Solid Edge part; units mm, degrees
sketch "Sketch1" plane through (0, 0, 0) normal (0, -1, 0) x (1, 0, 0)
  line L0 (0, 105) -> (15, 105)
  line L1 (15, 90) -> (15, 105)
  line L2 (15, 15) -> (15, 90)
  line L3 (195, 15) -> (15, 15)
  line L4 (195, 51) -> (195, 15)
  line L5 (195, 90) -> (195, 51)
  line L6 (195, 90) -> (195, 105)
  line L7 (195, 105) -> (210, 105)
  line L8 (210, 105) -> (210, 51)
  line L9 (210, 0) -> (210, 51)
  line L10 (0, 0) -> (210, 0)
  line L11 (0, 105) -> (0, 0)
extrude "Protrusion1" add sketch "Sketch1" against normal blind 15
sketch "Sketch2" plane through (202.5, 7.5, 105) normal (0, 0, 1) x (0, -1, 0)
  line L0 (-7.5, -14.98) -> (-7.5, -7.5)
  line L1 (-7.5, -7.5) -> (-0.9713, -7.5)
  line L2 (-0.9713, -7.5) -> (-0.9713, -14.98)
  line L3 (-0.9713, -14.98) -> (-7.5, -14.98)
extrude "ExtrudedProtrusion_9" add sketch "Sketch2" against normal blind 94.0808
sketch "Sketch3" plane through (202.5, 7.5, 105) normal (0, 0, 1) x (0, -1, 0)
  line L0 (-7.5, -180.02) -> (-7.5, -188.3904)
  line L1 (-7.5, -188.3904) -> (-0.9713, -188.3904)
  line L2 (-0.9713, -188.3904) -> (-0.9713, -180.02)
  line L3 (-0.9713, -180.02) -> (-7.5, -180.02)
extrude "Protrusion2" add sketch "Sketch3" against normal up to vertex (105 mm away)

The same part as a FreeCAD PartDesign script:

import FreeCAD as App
import Part
import Sketcher
from FreeCAD import Vector

doc = App.newDocument("Part")
body = doc.addObject("PartDesign::Body", "Body")

# Sketch on XZ plane
sketch1 = doc.addObject("Sketcher::SketchObject", "Sketch")
body.addObject(sketch1)
sketch1.AttachmentSupport = (doc.XZ_Plane, [""])
sketch1.MapMode = "FlatFace"
sketch1.addGeometry(Part.LineSegment(Vector(15, 105, 0), Vector(0, 105, 0)), False)
sketch1.addGeometry(Part.LineSegment(Vector(0, 105, 0), Vector(0, 0, 0)), False)
sketch1.addGeometry(Part.LineSegment(Vector(0, 0, 0), Vector(210, 0, 0)), False)
sketch1.addGeometry(Part.LineSegment(Vector(210, 0, 0), Vector(210, 105, 0)), False)
sketch1.addGeometry(Part.LineSegment(Vector(210, 105, 0), Vector(195, 105, 0)), False)
sketch1.addGeometry(Part.LineSegment(Vector(195, 105, 0), Vector(195, 15, 0)), False)
sketch1.addGeometry(Part.LineSegment(Vector(195, 15, 0), Vector(15, 15, 0)), False)
sketch1.addGeometry(Part.LineSegment(Vector(15, 15, 0), Vector(15, 105, 0)), False)
sketch1.addConstraint(Sketcher.Constraint("Coincident", 0, 2, 1, 1))
sketch1.addConstraint(Sketcher.Constraint("Coincident", 1, 2, 2, 1))
sketch1.addConstraint(Sketcher.Constraint("Coincident", 2, 2, 3, 1))
sketch1.addConstraint(Sketcher.Constraint("Coincident", 3, 2, 4, 1))
sketch1.addConstraint(Sketcher.Constraint("Coincident", 4, 2, 5, 1))
sketch1.addConstraint(Sketcher.Constraint("Coincident", 5, 2, 6, 1))
sketch1.addConstraint(Sketcher.Constraint("Coincident", 6, 2, 7, 1))
sketch1.addConstraint(Sketcher.Constraint("Coincident", 7, 2, 0, 1))
sketch1.addConstraint(Sketcher.Constraint("Horizontal", 0))
sketch1.addConstraint(Sketcher.Constraint("Vertical", 1))
sketch1.addConstraint(Sketcher.Constraint("Horizontal", 2))
sketch1.addConstraint(Sketcher.Constraint("Vertical", 3))
sketch1.addConstraint(Sketcher.Constraint("Horizontal", 4))
sketch1.addConstraint(Sketcher.Constraint("Vertical", 5))
sketch1.addConstraint(Sketcher.Constraint("Horizontal", 6))
sketch1.addConstraint(Sketcher.Constraint("Vertical", 7))
sketch1.addConstraint(Sketcher.Constraint("Coincident", 1, 2, -1, 1))
sketch1.addConstraint(Sketcher.Constraint("Horizontal", 0, 2, 3, 2))
sketch1.addConstraint(Sketcher.Constraint("Equal", 0, 4))
sketch1.addConstraint(Sketcher.Constraint("DistanceX", 0, 2, 0, 1, 15.0))
sketch1.addConstraint(Sketcher.Constraint("DistanceX", 2, 1, 2, 2, 210.0))
sketch1.addConstraint(Sketcher.Constraint("DistanceY", 1, 2, 1, 1, 105.0))
sketch1.addConstraint(Sketcher.Constraint("DistanceY", 5, 2, 5, 1, 90.0))
pad1 = doc.addObject("PartDesign::Pad", "Pad")
body.addObject(pad1)
pad1.Profile = sketch1
pad1.Length = 15
pad1.Reversed = True

# Sketch on XY plane
sketch2 = doc.addObject("Sketcher::SketchObject", "Sketch001")
body.addObject(sketch2)
sketch2.AttachmentSupport = (doc.XY_Plane, [""])
sketch2.MapMode = "FlatFace"
sketch2.AttachmentOffset = App.Placement(Vector(0, 0, 105), App.Rotation())
sketch2.addGeometry(Part.LineSegment(Vector(195, 15, 0), Vector(187.52, 15, 0)), False)
sketch2.addGeometry(Part.LineSegment(Vector(187.52, 15, 0), Vector(187.52, 8.4713, 0)), False)
sketch2.addGeometry(Part.LineSegment(Vector(187.52, 8.4713, 0), Vector(195, 8.4713, 0)), False)
sketch2.addGeometry(Part.LineSegment(Vector(195, 8.4713, 0), Vector(195, 15, 0)), False)
sketch2.addConstraint(Sketcher.Constraint("Coincident", 0, 2, 1, 1))
sketch2.addConstraint(Sketcher.Constraint("Coincident", 1, 2, 2, 1))
sketch2.addConstraint(Sketcher.Constraint("Coincident", 2, 2, 3, 1))
sketch2.addConstraint(Sketcher.Constraint("Coincident", 3, 2, 0, 1))
sketch2.addConstraint(Sketcher.Constraint("Horizontal", 0))
sketch2.addConstraint(Sketcher.Constraint("Vertical", 1))
sketch2.addConstraint(Sketcher.Constraint("Horizontal", 2))
sketch2.addConstraint(Sketcher.Constraint("Vertical", 3))
sketch2.addConstraint(Sketcher.Constraint("DistanceY", -1, 1, 0, 2, 15.0))
sketch2.addConstraint(Sketcher.Constraint("DistanceX", -1, 1, 2, 2, 195.0))
sketch2.addConstraint(Sketcher.Constraint("DistanceX", 0, 2, 0, 1, 7.48))
sketch2.addConstraint(Sketcher.Constraint("DistanceY", 1, 2, 1, 1, 6.5287))
pad2 = doc.addObject("PartDesign::Pad", "Pad001")
body.addObject(pad2)
pad2.Profile = sketch2
pad2.Length = 94.0808
pad2.Reversed = True

# Sketch on XY plane
sketch3 = doc.addObject("Sketcher::SketchObject", "Sketch002")
body.addObject(sketch3)
sketch3.AttachmentSupport = (doc.XY_Plane, [""])
sketch3.MapMode = "FlatFace"
sketch3.AttachmentOffset = App.Placement(Vector(0, 0, 105), App.Rotation())
sketch3.addGeometry(Part.LineSegment(Vector(22.48, 8.4713, 0), Vector(22.48, 15, 0)), False)
sketch3.addGeometry(Part.LineSegment(Vector(22.48, 15, 0), Vector(14.1096, 15, 0)), False)
sketch3.addGeometry(Part.LineSegment(Vector(14.1096, 15, 0), Vector(14.1096, 8.4713, 0)), False)
sketch3.addGeometry(Part.LineSegment(Vector(14.1096, 8.4713, 0), Vector(22.48, 8.4713, 0)), False)
sketch3.addConstraint(Sketcher.Constraint("Coincident", 0, 2, 1, 1))
sketch3.addConstraint(Sketcher.Constraint("Coincident", 1, 2, 2, 1))
sketch3.addConstraint(Sketcher.Constraint("Coincident", 2, 2, 3, 1))
sketch3.addConstraint(Sketcher.Constraint("Coincident", 3, 2, 0, 1))
sketch3.addConstraint(Sketcher.Constraint("Vertical", 0))
sketch3.addConstraint(Sketcher.Constraint("Horizontal", 1))
sketch3.addConstraint(Sketcher.Constraint("Vertical", 2))
sketch3.addConstraint(Sketcher.Constraint("Horizontal", 3))
sketch3.addConstraint(Sketcher.Constraint("DistanceY", -1, 1, 0, 2, 15.0))
sketch3.addConstraint(Sketcher.Constraint("DistanceX", -1, 1, 0, 2, 22.48))
sketch3.addConstraint(Sketcher.Constraint("DistanceX", 1, 2, 1, 1, 8.3704))
sketch3.addConstraint(Sketcher.Constraint("DistanceY", 0, 1, 0, 2, 6.5287))
pad3 = doc.addObject("PartDesign::Pad", "Pad002")
body.addObject(pad3)
pad3.Profile = sketch3
pad3.Length = 105
pad3.Reversed = True

doc.recompute()
